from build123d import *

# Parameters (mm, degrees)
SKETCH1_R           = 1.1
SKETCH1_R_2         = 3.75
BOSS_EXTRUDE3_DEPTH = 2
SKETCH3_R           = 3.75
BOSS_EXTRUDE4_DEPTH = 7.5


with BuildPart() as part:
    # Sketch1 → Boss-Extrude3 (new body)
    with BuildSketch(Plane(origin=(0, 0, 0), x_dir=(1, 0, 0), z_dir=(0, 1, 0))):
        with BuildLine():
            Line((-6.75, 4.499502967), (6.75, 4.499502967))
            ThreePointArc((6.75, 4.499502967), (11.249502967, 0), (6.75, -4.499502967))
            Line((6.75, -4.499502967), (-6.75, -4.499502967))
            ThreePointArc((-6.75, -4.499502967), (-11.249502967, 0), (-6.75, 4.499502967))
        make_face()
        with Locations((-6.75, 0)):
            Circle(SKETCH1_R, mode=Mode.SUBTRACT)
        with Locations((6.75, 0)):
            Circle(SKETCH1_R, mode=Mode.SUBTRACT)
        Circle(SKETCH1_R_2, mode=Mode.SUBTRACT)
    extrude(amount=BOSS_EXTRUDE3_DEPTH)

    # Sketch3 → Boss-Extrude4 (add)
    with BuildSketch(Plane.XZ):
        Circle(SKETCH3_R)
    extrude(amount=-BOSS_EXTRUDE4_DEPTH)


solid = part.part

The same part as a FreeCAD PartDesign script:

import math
import FreeCAD as App
import Part
import Sketcher

V = App.Vector
Q = App.Units.Quantity

doc = App.newDocument("Part")
body = doc.addObject("PartDesign::Body", "Body")

sketch1 = doc.addObject("Sketcher::SketchObject", "Sketch")
body.addObject(sketch1)
sketch1.AttachmentSupport = (doc.XZ_Plane, [""])
sketch1.MapMode = "FlatFace"
sketch1.addGeometry([
    Part.LineSegment(V(6.75, -4.499503, 0), V(-6.75, -4.499503, 0)),
    Part.ArcOfCircle(Part.Circle(V(-6.75, 0, 0), V(0, 0, 1), 4.499503), math.radians(90), math.radians(270)),
    Part.LineSegment(V(-6.75, 4.499503, 0), V(6.75, 4.499503, 0)),
    Part.ArcOfCircle(Part.Circle(V(6.75, 0, 0), V(0, 0, 1), 4.499503), math.radians(-90), math.radians(90)),
    Part.Circle(V(6.75, 0, 0), V(0, 0, 1), 1.1),
    Part.Circle(V(0, 0, 0), V(0, 0, 1), 3.75),
    Part.Circle(V(-6.75, 0, 0), V(0, 0, 1), 1.1),
], False)
sketch1.addConstraint([
    Sketcher.Constraint("Tangent", 0, 2, 1, 2),
    Sketcher.Constraint("Tangent", 1, 1, 2, 1),
    Sketcher.Constraint("Tangent", 2, 2, 3, 2),
    Sketcher.Constraint("Tangent", 3, 1, 0, 1),
    Sketcher.Constraint("Horizontal", 0),
    Sketcher.Constraint("Horizontal", 2),
    Sketcher.Constraint("Coincident", 5, 3, -1, 1),
    Sketcher.Constraint("Coincident", 4, 3, 3, 3),
    Sketcher.Constraint("Coincident", 6, 3, 1, 3),
    Sketcher.Constraint("Equal", 4, 6),
    Sketcher.Constraint("Symmetric", 1, 3, 3, 3, -1, 1),
    Sketcher.Constraint("Diameter", 4, Q("2.2 mm")),
    Sketcher.Constraint("Diameter", 5, Q("7.5 mm")),
    Sketcher.Constraint("DistanceX", 0, 2, 0, 1, Q("13.5 mm")),
    Sketcher.Constraint("Radius", 1, Q("4.499503 mm")),
])
pad1 = doc.addObject("PartDesign::Pad", "Pad")
body.addObject(pad1)
pad1.Profile = sketch1
pad1.Length = 2
pad1.Reversed = True

sketch2 = doc.addObject("Sketcher::SketchObject", "Sketch001")
body.addObject(sketch2)
sketch2.AttachmentSupport = (doc.XZ_Plane, [""])
sketch2.MapMode = "FlatFace"
sketch2.addGeometry(Part.Circle(V(0, 0, 0), V(0, 0, 1), 3.75), False)
sketch2.addConstraint([
    Sketcher.Constraint("Coincident", 0, 3, -1, 1),
    Sketcher.Constraint("Diameter", 0, Q("7.5 mm")),
])
pad2 = doc.addObject("PartDesign::Pad", "Pad001")
body.addObject(pad2)
pad2.Profile = sketch2
pad2.Length = 7.5
pad2.Reversed = True

doc.recompute()
